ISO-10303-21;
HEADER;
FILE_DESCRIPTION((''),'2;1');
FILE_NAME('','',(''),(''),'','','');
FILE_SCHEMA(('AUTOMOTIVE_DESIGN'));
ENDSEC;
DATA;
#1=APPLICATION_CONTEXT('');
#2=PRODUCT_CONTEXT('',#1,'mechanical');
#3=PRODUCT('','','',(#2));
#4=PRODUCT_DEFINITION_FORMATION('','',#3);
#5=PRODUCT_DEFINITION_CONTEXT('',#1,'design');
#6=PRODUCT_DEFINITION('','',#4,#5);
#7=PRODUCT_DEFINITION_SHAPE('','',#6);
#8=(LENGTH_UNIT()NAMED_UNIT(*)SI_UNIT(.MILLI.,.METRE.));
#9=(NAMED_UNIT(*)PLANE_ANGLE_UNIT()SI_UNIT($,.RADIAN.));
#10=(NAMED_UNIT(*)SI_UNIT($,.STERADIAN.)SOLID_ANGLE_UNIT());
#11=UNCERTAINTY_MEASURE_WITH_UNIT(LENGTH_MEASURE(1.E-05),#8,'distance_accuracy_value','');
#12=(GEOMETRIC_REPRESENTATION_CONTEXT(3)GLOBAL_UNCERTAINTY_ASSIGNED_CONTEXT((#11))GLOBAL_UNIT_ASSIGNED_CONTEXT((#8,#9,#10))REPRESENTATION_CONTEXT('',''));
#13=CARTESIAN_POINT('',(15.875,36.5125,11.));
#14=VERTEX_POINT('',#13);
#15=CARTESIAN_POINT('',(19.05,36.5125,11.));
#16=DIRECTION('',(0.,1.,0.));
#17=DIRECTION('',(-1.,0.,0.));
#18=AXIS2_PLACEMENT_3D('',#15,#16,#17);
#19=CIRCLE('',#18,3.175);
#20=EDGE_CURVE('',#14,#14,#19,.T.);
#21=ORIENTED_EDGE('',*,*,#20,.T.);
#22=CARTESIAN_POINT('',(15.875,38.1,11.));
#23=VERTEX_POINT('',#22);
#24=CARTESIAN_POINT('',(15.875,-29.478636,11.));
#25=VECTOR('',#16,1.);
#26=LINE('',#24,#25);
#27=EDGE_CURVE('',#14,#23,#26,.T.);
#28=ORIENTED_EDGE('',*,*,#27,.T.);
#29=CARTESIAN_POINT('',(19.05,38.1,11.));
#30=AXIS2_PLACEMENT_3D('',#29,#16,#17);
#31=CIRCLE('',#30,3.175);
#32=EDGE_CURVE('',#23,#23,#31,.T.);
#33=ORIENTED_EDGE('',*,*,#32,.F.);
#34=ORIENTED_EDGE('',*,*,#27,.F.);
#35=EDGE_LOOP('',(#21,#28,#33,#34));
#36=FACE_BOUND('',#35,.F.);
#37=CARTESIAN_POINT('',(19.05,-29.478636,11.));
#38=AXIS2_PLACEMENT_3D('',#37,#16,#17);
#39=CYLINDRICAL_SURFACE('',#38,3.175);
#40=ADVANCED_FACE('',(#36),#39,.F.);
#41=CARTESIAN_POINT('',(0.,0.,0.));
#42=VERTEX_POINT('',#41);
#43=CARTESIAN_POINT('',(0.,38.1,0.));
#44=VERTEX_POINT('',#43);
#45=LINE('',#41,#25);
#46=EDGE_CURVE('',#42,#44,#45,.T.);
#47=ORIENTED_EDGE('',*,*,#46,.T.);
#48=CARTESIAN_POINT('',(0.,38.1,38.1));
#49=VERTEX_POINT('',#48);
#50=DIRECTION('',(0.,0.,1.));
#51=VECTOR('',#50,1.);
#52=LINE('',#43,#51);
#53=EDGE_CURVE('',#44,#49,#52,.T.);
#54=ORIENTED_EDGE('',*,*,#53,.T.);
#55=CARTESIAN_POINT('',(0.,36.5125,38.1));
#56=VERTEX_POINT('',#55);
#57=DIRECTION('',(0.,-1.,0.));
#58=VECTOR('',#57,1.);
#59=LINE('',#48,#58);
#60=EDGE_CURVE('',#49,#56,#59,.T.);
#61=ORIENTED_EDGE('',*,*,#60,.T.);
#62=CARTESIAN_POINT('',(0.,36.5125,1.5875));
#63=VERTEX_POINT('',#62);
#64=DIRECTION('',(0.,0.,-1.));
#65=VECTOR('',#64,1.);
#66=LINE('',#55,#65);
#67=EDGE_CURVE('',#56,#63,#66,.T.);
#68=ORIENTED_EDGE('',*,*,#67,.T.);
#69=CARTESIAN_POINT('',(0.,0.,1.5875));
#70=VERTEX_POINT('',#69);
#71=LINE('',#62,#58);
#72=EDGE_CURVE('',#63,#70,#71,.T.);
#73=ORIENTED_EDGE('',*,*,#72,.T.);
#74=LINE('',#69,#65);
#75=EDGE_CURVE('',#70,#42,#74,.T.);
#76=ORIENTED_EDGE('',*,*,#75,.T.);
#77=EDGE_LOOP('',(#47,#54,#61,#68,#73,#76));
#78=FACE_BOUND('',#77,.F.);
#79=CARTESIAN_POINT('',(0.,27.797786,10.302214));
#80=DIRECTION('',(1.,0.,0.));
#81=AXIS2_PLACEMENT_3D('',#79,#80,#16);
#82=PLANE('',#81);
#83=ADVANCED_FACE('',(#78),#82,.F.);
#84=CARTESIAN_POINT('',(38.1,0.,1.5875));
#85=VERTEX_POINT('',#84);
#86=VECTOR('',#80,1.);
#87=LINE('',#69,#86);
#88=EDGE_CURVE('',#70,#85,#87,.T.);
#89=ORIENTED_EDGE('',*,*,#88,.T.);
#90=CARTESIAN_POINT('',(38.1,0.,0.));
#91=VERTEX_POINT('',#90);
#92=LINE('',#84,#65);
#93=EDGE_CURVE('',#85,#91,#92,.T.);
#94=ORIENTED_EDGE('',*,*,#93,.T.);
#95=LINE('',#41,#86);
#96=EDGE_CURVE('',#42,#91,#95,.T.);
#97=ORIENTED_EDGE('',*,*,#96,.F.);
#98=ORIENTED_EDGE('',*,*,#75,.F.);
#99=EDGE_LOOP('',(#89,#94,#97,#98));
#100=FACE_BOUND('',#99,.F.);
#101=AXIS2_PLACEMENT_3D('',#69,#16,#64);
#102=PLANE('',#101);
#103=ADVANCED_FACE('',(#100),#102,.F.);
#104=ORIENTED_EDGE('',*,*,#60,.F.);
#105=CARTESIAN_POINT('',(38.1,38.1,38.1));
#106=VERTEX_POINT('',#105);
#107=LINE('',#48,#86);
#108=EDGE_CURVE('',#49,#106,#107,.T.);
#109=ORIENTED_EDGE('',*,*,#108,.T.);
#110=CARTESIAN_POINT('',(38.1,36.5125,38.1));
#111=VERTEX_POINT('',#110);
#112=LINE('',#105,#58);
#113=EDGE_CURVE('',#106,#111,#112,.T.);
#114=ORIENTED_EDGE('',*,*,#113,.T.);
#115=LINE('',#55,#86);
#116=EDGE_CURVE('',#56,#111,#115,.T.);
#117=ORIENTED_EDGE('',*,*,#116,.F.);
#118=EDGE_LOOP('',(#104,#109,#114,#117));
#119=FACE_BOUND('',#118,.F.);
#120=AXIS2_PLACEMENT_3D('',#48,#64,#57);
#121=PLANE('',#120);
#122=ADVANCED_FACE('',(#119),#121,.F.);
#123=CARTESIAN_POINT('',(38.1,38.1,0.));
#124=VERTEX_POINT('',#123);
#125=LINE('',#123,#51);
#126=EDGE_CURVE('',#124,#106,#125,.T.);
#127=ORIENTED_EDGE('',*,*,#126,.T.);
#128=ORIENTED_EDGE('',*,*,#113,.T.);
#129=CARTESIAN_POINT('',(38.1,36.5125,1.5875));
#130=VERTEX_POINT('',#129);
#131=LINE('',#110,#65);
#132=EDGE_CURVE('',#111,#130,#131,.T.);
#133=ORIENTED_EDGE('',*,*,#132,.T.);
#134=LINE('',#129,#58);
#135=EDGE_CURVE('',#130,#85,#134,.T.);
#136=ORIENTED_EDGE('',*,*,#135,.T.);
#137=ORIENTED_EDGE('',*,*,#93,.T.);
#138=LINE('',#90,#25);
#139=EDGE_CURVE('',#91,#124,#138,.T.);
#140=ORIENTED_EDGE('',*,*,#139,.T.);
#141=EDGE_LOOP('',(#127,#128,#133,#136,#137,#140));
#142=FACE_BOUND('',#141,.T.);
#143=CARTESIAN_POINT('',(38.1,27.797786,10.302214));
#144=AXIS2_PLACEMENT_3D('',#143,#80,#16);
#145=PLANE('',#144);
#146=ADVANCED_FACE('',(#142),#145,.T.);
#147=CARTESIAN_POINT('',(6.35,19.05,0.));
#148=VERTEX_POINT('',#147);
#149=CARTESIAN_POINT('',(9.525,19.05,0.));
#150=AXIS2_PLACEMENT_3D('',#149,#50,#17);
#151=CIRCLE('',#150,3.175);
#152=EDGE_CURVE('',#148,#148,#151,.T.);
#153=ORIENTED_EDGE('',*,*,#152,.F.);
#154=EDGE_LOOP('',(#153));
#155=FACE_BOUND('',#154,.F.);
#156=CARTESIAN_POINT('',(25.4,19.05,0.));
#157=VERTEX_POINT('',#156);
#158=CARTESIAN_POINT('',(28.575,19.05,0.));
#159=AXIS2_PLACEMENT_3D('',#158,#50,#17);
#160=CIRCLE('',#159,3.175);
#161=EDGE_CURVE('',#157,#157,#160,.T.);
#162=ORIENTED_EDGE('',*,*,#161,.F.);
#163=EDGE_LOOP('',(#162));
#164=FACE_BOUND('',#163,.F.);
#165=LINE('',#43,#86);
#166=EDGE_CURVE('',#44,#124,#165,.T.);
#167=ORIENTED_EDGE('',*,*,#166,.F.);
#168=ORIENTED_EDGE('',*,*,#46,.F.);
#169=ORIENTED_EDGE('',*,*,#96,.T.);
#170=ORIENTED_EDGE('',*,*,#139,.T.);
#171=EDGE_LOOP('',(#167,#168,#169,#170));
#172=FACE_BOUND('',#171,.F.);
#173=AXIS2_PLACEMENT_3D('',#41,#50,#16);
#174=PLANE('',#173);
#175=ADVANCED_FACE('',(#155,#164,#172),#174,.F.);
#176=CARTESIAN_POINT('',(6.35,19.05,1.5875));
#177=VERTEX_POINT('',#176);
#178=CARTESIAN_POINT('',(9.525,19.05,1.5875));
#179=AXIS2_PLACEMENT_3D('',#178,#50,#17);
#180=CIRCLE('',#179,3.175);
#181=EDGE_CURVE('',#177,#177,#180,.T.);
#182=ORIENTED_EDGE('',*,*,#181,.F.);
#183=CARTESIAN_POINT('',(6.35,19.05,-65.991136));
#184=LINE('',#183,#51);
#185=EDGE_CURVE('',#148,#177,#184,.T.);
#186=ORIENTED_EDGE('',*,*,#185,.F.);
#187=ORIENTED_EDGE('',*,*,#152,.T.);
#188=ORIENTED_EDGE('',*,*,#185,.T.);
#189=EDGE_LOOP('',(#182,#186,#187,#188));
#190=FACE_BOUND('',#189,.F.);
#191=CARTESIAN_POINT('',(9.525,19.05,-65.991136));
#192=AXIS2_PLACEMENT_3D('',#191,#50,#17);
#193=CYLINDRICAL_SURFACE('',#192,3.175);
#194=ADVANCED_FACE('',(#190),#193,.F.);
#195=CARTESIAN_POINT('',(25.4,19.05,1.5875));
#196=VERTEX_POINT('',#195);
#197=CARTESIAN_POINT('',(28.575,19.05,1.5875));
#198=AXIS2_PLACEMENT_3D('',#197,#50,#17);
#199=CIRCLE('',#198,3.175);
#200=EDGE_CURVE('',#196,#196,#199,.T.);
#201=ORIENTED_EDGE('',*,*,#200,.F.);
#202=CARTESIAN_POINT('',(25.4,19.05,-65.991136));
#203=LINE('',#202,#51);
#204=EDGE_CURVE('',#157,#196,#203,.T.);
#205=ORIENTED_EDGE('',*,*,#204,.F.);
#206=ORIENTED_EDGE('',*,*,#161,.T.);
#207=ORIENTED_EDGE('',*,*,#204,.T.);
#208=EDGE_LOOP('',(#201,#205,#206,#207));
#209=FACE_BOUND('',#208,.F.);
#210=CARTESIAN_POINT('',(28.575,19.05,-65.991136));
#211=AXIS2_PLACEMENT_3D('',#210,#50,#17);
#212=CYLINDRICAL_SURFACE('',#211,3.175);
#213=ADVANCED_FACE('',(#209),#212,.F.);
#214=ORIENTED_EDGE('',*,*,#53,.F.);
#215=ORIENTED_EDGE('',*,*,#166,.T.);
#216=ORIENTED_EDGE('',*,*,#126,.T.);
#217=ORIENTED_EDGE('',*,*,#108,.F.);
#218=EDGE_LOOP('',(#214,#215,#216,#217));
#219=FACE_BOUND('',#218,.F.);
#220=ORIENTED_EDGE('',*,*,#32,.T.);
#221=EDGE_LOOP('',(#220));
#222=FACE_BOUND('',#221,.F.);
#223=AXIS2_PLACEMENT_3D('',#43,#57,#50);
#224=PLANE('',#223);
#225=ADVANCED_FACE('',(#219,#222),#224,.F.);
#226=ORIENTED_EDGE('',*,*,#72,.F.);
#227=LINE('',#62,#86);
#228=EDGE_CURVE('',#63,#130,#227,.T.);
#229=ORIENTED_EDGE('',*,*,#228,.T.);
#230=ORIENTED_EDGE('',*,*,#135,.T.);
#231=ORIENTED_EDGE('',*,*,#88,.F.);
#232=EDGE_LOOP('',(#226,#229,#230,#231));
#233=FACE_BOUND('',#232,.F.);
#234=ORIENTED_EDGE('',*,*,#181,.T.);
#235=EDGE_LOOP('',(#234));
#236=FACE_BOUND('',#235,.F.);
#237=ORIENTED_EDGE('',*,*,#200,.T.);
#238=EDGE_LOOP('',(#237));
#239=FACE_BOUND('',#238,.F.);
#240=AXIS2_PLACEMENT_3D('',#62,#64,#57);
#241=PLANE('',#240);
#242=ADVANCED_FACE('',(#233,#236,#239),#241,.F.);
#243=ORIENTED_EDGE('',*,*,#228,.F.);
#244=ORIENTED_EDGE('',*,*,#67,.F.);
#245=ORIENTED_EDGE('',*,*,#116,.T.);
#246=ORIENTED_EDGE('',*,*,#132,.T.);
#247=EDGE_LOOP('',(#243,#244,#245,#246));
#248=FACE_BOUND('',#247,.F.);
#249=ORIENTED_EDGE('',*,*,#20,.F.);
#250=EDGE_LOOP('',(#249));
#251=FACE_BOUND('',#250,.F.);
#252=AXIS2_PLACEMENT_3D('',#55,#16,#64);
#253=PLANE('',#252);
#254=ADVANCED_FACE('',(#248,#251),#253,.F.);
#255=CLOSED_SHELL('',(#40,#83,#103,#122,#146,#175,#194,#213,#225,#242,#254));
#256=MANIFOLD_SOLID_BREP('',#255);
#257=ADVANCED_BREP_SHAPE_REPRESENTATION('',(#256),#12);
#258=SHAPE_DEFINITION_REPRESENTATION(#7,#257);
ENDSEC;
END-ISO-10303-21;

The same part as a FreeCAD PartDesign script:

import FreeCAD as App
import Part
import Sketcher

V = App.Vector
Q = App.Units.Quantity

doc = App.newDocument("Part")
body = doc.addObject("PartDesign::Body", "Body")

sketch1 = body.newObject("Sketcher::SketchObject", "Sketch")
sketch1.AttachmentSupport = (doc.getObject("YZ_Plane"), [""])
sketch1.MapMode = "FlatFace"
sketch1.addGeometry(Part.LineSegment(V(0, 1.6, 0), V(0, 0, 0)), False)
sketch1.addGeometry(Part.LineSegment(V(0, 0, 0), V(38.1, 0, 0)), False)
sketch1.addGeometry(Part.LineSegment(V(38.1, 0, 0), V(38.1, 38.1, 0)), False)
sketch1.addGeometry(Part.LineSegment(V(38.1, 38.1, 0), V(36.5, 38.1, 0)), False)
sketch1.addGeometry(Part.LineSegment(V(36.5, 38.1, 0), V(36.5, 1.6, 0)), False)
sketch1.addGeometry(Part.LineSegment(V(36.5, 1.6, 0), V(0, 1.6, 0)), False)
sketch1.addConstraint(Sketcher.Constraint("Coincident", 0, 2, 1, 1))
sketch1.addConstraint(Sketcher.Constraint("Coincident", 1, 2, 2, 1))
sketch1.addConstraint(Sketcher.Constraint("Coincident", 2, 2, 3, 1))
sketch1.addConstraint(Sketcher.Constraint("Coincident", 3, 2, 4, 1))
sketch1.addConstraint(Sketcher.Constraint("Coincident", 4, 2, 5, 1))
sketch1.addConstraint(Sketcher.Constraint("Coincident", 5, 2, 0, 1))
sketch1.addConstraint(Sketcher.Constraint("Vertical", 0))
sketch1.addConstraint(Sketcher.Constraint("Horizontal", 1))
sketch1.addConstraint(Sketcher.Constraint("Vertical", 2))
sketch1.addConstraint(Sketcher.Constraint("Horizontal", 3))
sketch1.addConstraint(Sketcher.Constraint("Vertical", 4))
sketch1.addConstraint(Sketcher.Constraint("Horizontal", 5))
sketch1.addConstraint(Sketcher.Constraint("Coincident", 0, 2, -1, 1))
sketch1.addConstraint(Sketcher.Constraint("Equal", 3, 0))
sketch1.addConstraint(Sketcher.Constraint("Equal", 1, 2))
sketch1.addConstraint(Sketcher.Constraint("DistanceX", 1, 1, 1, 2, Q("1.5 in")))
sketch1.addConstraint(Sketcher.Constraint("DistanceX", 3, 2, 3, 1, Q("0.0625 in")))
pad1 = body.newObject("PartDesign::Pad", "Pad")
pad1.Profile = sketch1
pad1.Length = Q("1.5 in")

sketch2 = body.newObject("Sketcher::SketchObject", "Sketch001")
sketch2.AttachmentSupport = (doc.getObject("XZ_Plane"), [""])
sketch2.MapMode = "FlatFace"
sketch2.AttachmentOffset = App.Placement(V(0, 0, -1.4375 * 25.4), App.Rotation())
sketch2.addGeometry(Part.Circle(V(19.1, 11, 0), V(0, 0, 1), 3.2), False)
sketch2.addConstraint(Sketcher.Constraint("Diameter", 0, Q("0.25 in")))
sketch2.addConstraint(Sketcher.Constraint("DistanceX", -1, 1, 0, 3, Q("0.75 in")))
sketch2.addConstraint(Sketcher.Constraint("DistanceY", -1, 1, 0, 3, Q("11 mm")))
doc.recompute()
hole = body.newObject("PartDesign::Hole", "Hole")
hole.Profile = sketch2
hole.ThreadType = "None"
hole.Diameter = Q("0.25 in")
hole.DepthType = "ThroughAll"

sketch3 = body.newObject("Sketcher::SketchObject", "Sketch002")
sketch3.AttachmentSupport = (doc.getObject("XY_Plane"), [""])
sketch3.MapMode = "FlatFace"
sketch3.addGeometry(Part.Circle(V(9.5, 19.1, 0), V(0, 0, 1), 3.2), False)
sketch3.addGeometry(Part.Circle(V(28.6, 19.1, 0), V(0, 0, 1), 3.2), False)
sketch3.addConstraint(Sketcher.Constraint("Equal", 0, 1))
sketch3.addConstraint(Sketcher.Constraint("Horizontal", 0, 3, 1, 3))
sketch3.addConstraint(Sketcher.Constraint("Diameter", 0, Q("0.25 in")))
sketch3.addConstraint(Sketcher.Constraint("DistanceY", -1, 1, 0, 3, Q("0.75 in")))
sketch3.addConstraint(Sketcher.Constraint("DistanceX", 0, 3, 1, 3, Q("0.75 in")))
sketch3.addConstraint(Sketcher.Constraint("DistanceX", -1, 1, 0, 3, Q("0.375 in")))
doc.recompute()
hole2 = body.newObject("PartDesign::Hole", "Hole001")
hole2.Profile = sketch3
hole2.ThreadType = "None"
hole2.Diameter = Q("0.25 in")
hole2.DepthType = "ThroughAll"
hole2.Reversed = True

doc.recompute()
